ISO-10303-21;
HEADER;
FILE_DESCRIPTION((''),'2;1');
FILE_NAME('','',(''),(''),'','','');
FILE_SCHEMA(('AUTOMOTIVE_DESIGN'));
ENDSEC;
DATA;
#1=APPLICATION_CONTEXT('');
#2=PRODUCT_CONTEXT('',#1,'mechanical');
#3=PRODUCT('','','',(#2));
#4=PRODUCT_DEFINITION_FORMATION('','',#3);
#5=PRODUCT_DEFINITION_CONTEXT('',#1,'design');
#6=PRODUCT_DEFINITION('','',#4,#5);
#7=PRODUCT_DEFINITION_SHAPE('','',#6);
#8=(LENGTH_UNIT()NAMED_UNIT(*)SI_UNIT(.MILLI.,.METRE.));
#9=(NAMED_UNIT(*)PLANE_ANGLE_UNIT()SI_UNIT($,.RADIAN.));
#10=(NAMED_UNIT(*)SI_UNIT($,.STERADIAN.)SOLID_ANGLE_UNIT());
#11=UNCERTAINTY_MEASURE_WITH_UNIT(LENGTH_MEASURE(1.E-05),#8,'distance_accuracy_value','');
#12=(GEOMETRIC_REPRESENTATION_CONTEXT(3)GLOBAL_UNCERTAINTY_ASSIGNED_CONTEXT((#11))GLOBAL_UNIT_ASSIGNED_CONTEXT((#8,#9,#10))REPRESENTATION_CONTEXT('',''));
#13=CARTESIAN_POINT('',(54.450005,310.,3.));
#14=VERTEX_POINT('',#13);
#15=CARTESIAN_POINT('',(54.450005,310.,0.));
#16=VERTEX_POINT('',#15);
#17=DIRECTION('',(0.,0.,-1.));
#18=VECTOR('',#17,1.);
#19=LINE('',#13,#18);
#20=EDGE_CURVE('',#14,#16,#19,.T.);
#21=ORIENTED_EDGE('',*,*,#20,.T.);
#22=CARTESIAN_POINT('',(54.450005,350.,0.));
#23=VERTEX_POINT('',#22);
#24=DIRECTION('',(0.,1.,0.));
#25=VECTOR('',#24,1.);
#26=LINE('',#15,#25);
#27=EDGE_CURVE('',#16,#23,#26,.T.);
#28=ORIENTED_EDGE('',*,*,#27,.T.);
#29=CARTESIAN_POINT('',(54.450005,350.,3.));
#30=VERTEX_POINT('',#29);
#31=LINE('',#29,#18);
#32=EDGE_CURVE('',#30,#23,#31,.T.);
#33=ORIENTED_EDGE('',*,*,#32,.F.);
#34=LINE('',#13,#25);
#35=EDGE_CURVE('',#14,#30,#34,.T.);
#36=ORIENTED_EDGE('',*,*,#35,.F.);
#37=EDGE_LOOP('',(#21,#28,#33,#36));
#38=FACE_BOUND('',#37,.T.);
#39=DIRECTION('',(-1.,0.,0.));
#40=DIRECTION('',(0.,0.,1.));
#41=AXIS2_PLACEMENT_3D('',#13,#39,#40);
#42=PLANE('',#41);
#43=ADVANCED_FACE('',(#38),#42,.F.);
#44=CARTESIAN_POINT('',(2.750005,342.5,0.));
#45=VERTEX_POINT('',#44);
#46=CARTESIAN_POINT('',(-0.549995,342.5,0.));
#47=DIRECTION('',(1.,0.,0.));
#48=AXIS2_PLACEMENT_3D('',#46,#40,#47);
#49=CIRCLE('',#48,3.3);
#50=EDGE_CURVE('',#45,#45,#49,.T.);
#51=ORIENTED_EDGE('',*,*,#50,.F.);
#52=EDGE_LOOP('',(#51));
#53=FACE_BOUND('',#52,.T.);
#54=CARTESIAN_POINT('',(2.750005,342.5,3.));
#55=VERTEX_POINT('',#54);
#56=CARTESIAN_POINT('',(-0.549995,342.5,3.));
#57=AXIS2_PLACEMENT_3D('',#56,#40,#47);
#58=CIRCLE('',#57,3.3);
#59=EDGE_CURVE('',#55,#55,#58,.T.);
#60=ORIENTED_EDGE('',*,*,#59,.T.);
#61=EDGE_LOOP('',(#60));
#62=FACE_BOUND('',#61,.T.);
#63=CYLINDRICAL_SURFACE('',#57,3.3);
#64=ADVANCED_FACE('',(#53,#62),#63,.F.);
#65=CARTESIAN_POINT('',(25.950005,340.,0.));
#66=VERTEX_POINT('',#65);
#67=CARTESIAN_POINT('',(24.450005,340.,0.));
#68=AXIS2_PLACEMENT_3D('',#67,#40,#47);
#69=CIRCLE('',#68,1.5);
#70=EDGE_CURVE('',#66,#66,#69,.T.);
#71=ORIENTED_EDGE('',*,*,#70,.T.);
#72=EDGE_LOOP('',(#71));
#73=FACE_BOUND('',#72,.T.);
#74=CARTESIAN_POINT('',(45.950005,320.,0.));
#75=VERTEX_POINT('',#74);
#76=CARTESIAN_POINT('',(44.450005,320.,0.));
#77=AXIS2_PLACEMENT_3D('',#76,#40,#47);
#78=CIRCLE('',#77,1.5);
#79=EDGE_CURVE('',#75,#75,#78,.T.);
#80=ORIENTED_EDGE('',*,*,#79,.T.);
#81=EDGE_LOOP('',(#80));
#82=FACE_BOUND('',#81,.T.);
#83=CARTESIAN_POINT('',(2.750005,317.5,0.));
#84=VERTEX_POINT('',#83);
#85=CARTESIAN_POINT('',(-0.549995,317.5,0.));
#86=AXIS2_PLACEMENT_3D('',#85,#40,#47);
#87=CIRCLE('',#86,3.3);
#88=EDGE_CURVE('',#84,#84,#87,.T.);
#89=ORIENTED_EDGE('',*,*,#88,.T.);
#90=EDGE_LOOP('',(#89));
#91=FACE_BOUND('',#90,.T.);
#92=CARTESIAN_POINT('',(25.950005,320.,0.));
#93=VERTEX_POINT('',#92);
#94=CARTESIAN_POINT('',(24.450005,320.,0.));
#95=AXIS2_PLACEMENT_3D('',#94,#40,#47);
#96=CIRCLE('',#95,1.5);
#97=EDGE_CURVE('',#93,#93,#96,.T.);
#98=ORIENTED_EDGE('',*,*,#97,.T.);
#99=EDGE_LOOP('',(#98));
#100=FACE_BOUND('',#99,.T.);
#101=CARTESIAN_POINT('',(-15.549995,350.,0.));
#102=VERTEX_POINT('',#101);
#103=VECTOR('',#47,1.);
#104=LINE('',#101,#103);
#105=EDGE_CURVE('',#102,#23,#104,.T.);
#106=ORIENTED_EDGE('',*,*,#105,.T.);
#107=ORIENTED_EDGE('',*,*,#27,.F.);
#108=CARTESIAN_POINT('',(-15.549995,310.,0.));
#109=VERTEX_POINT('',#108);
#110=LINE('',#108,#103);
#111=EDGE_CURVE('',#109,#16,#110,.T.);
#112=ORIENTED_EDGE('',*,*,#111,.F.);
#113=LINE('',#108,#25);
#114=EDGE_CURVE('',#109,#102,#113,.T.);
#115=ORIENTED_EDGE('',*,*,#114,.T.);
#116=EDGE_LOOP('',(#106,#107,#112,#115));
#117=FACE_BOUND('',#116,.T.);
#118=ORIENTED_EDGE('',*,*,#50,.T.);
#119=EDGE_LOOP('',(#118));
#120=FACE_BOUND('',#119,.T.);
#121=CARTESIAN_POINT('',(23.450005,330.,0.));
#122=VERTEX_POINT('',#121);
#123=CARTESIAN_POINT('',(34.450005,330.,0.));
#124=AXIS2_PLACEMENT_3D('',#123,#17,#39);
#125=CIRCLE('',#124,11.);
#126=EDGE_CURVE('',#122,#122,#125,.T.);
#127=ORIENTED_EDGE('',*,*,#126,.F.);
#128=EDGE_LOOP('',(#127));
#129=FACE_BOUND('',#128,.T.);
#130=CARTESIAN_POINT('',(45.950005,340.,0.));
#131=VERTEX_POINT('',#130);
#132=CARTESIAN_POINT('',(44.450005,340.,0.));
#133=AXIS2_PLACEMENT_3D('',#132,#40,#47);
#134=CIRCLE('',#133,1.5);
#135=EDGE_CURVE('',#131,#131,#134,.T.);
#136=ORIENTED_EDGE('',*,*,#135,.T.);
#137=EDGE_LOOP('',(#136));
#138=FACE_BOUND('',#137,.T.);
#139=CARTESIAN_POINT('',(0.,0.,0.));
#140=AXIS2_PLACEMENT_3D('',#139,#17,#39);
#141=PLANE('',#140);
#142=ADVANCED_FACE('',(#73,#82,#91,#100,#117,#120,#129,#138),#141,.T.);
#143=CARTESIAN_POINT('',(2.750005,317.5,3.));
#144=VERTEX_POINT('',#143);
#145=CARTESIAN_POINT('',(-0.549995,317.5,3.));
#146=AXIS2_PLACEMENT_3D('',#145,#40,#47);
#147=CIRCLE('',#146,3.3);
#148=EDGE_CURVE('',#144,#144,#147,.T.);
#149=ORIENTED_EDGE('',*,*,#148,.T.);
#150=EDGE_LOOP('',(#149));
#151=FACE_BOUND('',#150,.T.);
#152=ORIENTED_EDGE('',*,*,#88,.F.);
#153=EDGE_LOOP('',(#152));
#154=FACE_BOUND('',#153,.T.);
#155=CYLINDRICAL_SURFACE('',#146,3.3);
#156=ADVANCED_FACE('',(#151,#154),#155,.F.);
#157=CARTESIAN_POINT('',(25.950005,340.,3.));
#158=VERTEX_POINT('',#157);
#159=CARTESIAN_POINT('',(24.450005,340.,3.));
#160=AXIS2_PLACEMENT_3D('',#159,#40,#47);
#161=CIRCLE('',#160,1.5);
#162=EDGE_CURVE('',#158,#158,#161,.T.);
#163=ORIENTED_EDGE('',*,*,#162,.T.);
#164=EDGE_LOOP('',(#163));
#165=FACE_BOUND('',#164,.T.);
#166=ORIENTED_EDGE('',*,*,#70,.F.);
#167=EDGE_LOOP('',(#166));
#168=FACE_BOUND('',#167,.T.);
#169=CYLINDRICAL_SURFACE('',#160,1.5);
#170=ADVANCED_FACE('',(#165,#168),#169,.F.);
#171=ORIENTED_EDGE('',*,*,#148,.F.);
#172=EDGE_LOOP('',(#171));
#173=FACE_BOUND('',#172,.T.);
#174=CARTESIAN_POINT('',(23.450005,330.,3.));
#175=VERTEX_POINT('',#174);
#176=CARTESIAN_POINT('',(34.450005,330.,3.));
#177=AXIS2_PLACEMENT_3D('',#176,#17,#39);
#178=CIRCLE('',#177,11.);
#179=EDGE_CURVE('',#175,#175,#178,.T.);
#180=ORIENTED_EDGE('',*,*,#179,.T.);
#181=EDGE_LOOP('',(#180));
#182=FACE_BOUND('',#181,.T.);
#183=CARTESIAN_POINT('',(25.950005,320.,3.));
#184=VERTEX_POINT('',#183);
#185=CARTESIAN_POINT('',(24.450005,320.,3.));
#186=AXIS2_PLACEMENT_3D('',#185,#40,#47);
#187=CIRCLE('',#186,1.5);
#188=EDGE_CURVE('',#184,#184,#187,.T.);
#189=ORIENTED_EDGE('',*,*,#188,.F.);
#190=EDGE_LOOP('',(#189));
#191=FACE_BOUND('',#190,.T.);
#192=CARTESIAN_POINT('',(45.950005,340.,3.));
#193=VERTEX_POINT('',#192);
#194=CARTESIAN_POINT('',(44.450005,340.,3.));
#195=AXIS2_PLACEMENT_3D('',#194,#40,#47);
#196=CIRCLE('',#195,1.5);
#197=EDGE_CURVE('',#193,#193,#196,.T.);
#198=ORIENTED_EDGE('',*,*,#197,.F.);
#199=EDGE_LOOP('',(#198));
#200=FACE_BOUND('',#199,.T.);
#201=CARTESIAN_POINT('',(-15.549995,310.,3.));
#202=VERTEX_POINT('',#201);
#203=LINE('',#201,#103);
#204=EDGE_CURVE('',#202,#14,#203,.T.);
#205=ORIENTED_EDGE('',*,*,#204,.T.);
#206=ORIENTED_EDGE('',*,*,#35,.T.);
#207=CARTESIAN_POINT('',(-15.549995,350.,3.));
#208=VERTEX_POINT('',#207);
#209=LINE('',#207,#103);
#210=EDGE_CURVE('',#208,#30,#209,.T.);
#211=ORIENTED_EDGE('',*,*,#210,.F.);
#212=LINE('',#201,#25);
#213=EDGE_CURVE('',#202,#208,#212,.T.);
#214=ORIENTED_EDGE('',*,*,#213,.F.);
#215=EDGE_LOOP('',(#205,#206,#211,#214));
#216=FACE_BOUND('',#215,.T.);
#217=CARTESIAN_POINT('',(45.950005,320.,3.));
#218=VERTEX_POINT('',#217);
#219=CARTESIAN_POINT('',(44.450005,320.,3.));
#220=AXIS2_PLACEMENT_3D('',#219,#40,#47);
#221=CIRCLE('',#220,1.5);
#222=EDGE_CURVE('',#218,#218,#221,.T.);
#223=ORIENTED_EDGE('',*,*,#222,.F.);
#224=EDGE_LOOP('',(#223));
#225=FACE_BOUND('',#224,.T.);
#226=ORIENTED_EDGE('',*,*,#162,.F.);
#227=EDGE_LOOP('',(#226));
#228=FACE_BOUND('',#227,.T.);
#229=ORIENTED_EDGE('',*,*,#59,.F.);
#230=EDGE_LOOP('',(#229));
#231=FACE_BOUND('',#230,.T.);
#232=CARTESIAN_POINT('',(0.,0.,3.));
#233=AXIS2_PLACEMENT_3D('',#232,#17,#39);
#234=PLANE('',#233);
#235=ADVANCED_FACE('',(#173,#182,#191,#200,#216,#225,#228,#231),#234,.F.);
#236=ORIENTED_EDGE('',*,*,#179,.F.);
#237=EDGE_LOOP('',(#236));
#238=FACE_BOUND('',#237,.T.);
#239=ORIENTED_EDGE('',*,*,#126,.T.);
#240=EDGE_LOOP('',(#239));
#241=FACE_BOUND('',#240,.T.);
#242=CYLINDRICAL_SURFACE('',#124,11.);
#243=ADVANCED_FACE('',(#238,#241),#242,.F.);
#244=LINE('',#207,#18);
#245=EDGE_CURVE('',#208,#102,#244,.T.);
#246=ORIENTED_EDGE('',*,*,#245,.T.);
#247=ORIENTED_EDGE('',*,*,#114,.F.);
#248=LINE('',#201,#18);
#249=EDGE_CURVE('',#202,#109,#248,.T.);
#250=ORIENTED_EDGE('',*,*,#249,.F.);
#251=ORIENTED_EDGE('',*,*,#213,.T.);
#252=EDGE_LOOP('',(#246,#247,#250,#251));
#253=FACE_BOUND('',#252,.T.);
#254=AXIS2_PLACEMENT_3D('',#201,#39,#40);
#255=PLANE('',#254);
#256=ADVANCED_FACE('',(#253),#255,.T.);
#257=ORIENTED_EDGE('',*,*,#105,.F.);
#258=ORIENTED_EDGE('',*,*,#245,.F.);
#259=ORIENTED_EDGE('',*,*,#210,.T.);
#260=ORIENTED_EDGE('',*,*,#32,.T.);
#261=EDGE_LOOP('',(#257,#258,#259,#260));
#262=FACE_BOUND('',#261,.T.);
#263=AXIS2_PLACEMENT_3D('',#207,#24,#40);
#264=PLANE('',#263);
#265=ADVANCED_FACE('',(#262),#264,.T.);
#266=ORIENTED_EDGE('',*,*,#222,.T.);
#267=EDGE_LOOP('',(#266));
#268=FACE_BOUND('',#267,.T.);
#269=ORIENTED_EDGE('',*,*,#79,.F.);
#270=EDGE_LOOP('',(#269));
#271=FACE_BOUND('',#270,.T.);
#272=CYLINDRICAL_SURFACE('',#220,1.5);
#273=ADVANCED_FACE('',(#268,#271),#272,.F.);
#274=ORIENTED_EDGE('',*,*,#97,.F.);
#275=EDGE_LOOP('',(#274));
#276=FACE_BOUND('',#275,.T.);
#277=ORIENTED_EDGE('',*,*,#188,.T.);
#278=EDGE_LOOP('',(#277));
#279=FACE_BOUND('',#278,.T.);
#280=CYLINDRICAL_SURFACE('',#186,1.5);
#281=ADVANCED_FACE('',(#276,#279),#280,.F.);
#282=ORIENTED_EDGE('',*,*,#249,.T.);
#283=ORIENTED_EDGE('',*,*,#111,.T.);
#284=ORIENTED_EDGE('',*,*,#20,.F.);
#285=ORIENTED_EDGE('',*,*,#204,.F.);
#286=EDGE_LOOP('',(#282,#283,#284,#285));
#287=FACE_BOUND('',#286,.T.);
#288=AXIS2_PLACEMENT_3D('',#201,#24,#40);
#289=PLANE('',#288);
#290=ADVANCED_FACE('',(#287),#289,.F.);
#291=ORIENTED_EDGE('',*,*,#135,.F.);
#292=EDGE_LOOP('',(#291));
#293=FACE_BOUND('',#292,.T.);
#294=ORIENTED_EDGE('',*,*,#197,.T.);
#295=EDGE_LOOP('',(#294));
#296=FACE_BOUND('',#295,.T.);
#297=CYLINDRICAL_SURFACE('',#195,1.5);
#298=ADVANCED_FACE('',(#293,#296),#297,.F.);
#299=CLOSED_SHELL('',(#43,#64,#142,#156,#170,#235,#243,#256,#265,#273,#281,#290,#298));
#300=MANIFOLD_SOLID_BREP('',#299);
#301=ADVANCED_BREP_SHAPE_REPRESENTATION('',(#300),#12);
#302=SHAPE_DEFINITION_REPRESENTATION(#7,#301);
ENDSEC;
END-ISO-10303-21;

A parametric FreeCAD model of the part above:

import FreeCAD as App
import Part
import Sketcher


def add_polygon(sketch, points):
    """Adds a closed chain of lines whose ends are joined by coincident constraints."""
    first, n = sketch.GeometryCount, len(points)
    for a, b in zip(points, points[1:] + points[:1]):
        sketch.addGeometry(Part.LineSegment(App.Vector(*a, 0), App.Vector(*b, 0)), False)
    for i in range(n):
        sketch.addConstraint(Sketcher.Constraint("Coincident", first + i, 2, first + (i + 1) % n, 1))

doc = App.newDocument("Part")
body = doc.addObject("PartDesign::Body", "Body")

# Sketch on XY plane
sketch1 = doc.addObject("Sketcher::SketchObject", "Sketch")
body.addObject(sketch1)
sketch1.AttachmentSupport = (doc.XY_Plane, [""])
sketch1.MapMode = "FlatFace"
add_polygon(sketch1, [(-16, 350), (-16, 310), (54, 310), (54, 350)])  # lines 0-3
sketch1.addConstraint([
    Sketcher.Constraint("Vertical", 0),
    Sketcher.Constraint("Horizontal", 1),
    Sketcher.Constraint("Vertical", 2),
    Sketcher.Constraint("Horizontal", 3),
    Sketcher.Constraint("DistanceX", 1, 1, 1, 2, 70.0),
    Sketcher.Constraint("DistanceY", 0, 2, 0, 1, 40.0),
    Sketcher.Constraint("DistanceY", -1, 1, 0, 2, 310.0),
    Sketcher.Constraint("DistanceX", 0, 2, -1, 1, 15.549995),
])
pad1 = doc.addObject("PartDesign::Pad", "Pad")
body.addObject(pad1)
pad1.Profile = sketch1
pad1.Length = 3

# Sketch on XY plane
sketch2 = doc.addObject("Sketcher::SketchObject", "Sketch001")
body.addObject(sketch2)
sketch2.AttachmentSupport = (doc.XY_Plane, [""])
sketch2.MapMode = "FlatFace"
sketch2.AttachmentOffset = App.Placement(App.Vector(0, 0, 3), App.Rotation())
sketch2.addGeometry([
    Part.Circle(App.Vector(24.5, 340, 0), App.Vector(0, 0, 1), 1.5),
    Part.Circle(App.Vector(44.5, 340, 0), App.Vector(0, 0, 1), 1.5),
    Part.Circle(App.Vector(44.5, 320, 0), App.Vector(0, 0, 1), 1.5),
    Part.Circle(App.Vector(24.5, 320, 0), App.Vector(0, 0, 1), 1.5),
], False)
sketch2.addConstraint([
    Sketcher.Constraint("Equal", 0, 1),
    Sketcher.Constraint("Equal", 1, 2),
    Sketcher.Constraint("Equal", 2, 3),
    Sketcher.Constraint("Horizontal", 0, 3, 1, 3),
    Sketcher.Constraint("Horizontal", 2, 3, 3, 3),
    Sketcher.Constraint("Vertical", 1, 3, 2, 3),
    Sketcher.Constraint("Vertical", 0, 3, 3, 3),
    Sketcher.Constraint("Diameter", 0, 3.0),
    Sketcher.Constraint("DistanceY", -1, 1, 0, 3, 340.0),
    Sketcher.Constraint("DistanceY", -1, 1, 2, 3, 320.0),
    Sketcher.Constraint("DistanceX", 0, 3, 1, 3, 20.0),
    Sketcher.Constraint("DistanceX", -1, 1, 0, 3, 24.450005),
])
doc.recompute()
hole = doc.addObject("PartDesign::Hole", "Hole")
body.addObject(hole)
hole.Profile = sketch2
hole.ThreadType = "None"
hole.Diameter = 3
hole.DepthType = "ThroughAll"

# Sketch on XY plane
sketch3 = doc.addObject("Sketcher::SketchObject", "Sketch002")
body.addObject(sketch3)
sketch3.AttachmentSupport = (doc.XY_Plane, [""])
sketch3.MapMode = "FlatFace"
sketch3.AttachmentOffset = App.Placement(App.Vector(0, 0, 3), App.Rotation())
sketch3.addGeometry([
    Part.Circle(App.Vector(-0.5, 342.5, 0), App.Vector(0, 0, 1), 3.3),
    Part.Circle(App.Vector(-0.5, 317.5, 0), App.Vector(0, 0, 1), 3.3),
], False)
sketch3.addConstraint([
    Sketcher.Constraint("Equal", 0, 1),
    Sketcher.Constraint("Vertical", 0, 3, 1, 3),
    Sketcher.Constraint("Diameter", 0, 6.6),
    Sketcher.Constraint("DistanceY", 1, 3, 0, 3, 25.0),
    Sketcher.Constraint("DistanceY", -1, 1, 0, 3, 342.5),
    Sketcher.Constraint("DistanceX", 0, 3, -1, 1, 0.549995),
])
doc.recompute()
hole2 = doc.addObject("PartDesign::Hole", "Hole001")
body.addObject(hole2)
hole2.Profile = sketch3
hole2.ThreadType = "None"
hole2.Diameter = 6.6
hole2.DepthType = "ThroughAll"

# Sketch on XY plane
sketch4 = doc.addObject("Sketcher::SketchObject", "Sketch003")
body.addObject(sketch4)
sketch4.AttachmentSupport = (doc.XY_Plane, [""])
sketch4.MapMode = "FlatFace"
sketch4.addGeometry(Part.Circle(App.Vector(34, 330, 0), App.Vector(0, 0, 1), 11), False)
sketch4.addConstraint([
    Sketcher.Constraint("Diameter", 0, 22.0),
    Sketcher.Constraint("DistanceY", -1, 1, 0, 3, 330.0),
    Sketcher.Constraint("DistanceX", -1, 1, 0, 3, 34.450005),
])
doc.recompute()
hole3 = doc.addObject("PartDesign::Hole", "Hole002")
body.addObject(hole3)
hole3.Profile = sketch4
hole3.ThreadType = "None"
hole3.Diameter = 22
hole3.DepthType = "ThroughAll"
hole3.Reversed = True

doc.recompute()
